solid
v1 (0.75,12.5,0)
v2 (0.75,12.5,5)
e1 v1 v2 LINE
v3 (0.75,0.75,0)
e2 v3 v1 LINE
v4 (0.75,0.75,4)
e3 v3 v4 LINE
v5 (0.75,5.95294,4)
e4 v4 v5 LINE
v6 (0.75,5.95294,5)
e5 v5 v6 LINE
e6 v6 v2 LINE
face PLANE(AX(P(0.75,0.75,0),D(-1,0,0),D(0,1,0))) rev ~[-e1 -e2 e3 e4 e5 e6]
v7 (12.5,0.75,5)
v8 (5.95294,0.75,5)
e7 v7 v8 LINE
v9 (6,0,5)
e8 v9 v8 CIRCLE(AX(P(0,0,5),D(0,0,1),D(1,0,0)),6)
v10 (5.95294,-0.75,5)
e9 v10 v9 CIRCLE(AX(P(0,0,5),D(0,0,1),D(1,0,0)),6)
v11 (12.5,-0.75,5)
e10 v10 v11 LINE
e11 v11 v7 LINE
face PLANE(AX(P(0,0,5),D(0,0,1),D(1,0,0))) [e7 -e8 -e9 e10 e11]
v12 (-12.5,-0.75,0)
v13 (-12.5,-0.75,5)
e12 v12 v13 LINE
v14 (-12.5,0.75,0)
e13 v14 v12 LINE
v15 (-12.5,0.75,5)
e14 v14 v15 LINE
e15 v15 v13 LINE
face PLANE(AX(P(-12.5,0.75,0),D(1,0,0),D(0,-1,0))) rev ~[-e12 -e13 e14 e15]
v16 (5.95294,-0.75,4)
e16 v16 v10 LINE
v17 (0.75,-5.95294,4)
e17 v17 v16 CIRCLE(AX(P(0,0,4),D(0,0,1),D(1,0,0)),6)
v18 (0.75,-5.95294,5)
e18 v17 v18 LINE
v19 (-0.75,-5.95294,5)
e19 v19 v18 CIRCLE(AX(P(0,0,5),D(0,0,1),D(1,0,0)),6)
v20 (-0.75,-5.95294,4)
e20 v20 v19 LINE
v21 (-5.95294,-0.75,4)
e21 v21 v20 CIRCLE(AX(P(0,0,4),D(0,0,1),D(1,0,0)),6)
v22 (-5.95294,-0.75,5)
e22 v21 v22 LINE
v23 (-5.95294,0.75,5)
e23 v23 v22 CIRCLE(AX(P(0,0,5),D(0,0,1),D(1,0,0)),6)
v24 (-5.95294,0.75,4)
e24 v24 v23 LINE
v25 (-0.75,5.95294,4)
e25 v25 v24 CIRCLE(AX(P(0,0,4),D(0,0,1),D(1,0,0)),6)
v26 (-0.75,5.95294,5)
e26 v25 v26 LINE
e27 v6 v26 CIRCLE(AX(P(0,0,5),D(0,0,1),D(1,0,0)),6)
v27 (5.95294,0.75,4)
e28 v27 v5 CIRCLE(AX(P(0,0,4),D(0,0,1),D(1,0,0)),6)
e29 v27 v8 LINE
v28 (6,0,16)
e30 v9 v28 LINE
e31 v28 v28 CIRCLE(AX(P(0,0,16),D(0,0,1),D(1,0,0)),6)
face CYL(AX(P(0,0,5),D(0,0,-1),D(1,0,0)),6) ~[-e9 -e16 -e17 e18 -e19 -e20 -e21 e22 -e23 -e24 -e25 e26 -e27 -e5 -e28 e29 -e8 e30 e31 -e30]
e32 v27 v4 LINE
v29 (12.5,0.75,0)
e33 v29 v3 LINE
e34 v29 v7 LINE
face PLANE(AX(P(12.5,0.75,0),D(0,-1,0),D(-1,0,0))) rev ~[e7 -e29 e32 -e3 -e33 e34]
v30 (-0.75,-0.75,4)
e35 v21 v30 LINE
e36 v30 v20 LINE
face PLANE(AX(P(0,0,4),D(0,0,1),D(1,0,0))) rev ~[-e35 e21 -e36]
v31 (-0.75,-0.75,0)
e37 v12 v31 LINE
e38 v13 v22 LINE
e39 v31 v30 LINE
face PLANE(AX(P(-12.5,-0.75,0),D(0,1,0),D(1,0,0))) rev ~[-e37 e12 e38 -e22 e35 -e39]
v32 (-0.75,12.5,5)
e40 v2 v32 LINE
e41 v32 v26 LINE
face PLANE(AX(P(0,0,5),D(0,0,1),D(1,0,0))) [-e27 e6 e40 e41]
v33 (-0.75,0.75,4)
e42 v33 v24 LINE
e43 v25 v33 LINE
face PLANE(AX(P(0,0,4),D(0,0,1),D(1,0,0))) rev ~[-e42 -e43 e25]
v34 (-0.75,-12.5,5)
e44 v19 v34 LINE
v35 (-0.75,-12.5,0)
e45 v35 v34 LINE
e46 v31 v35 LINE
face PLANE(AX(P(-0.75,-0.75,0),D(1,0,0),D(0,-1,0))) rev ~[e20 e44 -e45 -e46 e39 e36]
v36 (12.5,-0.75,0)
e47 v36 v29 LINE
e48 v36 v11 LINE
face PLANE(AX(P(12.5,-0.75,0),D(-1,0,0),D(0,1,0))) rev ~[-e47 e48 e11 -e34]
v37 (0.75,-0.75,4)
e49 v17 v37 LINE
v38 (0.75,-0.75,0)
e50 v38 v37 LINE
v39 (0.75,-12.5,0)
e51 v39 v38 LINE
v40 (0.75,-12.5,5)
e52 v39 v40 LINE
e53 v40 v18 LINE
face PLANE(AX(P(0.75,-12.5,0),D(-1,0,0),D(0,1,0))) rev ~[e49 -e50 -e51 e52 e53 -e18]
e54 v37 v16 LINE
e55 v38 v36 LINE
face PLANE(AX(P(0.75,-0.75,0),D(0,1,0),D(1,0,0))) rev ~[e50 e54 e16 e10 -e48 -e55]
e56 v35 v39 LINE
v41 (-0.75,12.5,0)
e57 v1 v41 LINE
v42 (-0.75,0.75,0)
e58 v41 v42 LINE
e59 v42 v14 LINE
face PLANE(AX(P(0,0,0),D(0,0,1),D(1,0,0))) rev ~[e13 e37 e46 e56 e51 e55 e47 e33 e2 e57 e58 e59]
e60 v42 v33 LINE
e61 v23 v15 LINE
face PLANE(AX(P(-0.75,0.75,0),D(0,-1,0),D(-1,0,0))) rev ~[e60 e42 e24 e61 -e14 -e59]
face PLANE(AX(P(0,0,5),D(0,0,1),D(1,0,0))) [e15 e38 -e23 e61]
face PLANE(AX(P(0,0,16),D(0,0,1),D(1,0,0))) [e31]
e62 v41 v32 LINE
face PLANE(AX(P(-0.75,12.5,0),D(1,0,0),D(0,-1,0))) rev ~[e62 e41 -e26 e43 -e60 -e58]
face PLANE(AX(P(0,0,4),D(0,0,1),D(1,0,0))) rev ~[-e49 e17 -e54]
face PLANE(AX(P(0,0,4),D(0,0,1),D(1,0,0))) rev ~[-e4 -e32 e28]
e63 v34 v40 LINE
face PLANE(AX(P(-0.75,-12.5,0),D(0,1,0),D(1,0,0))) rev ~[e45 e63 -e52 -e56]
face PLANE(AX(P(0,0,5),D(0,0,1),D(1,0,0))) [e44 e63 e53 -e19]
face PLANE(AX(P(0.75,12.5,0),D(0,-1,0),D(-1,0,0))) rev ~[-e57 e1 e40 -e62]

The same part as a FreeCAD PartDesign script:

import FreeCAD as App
import Part
import Sketcher
from FreeCAD import Vector

doc = App.newDocument("Part")
body = doc.addObject("PartDesign::Body", "Body")

sketch1 = doc.addObject("Sketcher::SketchObject", "Sketch")
body.addObject(sketch1)
sketch1.AttachmentSupport = (doc.XY_Plane, [""])
sketch1.MapMode = "FlatFace"
sketch1.addGeometry(Part.LineSegment(Vector(-0.75, 12.5, 0), Vector(-0.75, 0.75, 0)), False)
sketch1.addGeometry(Part.LineSegment(Vector(-0.75, 0.75, 0), Vector(-12.5, 0.75, 0)), False)
sketch1.addGeometry(Part.LineSegment(Vector(-12.5, 0.75, 0), Vector(-12.5, -0.75, 0)), False)
sketch1.addGeometry(Part.LineSegment(Vector(-12.5, -0.75, 0), Vector(-0.75, -0.75, 0)), False)
sketch1.addGeometry(Part.LineSegment(Vector(-0.75, -0.75, 0), Vector(-0.75, -12.5, 0)), False)
sketch1.addGeometry(Part.LineSegment(Vector(-0.75, -12.5, 0), Vector(0.75, -12.5, 0)), False)
sketch1.addGeometry(Part.LineSegment(Vector(0.75, -12.5, 0), Vector(0.75, -0.75, 0)), False)
sketch1.addGeometry(Part.LineSegment(Vector(0.75, -0.75, 0), Vector(12.5, -0.75, 0)), False)
sketch1.addGeometry(Part.LineSegment(Vector(12.5, -0.75, 0), Vector(12.5, 0.75, 0)), False)
sketch1.addGeometry(Part.LineSegment(Vector(12.5, 0.75, 0), Vector(0.75, 0.75, 0)), False)
sketch1.addGeometry(Part.LineSegment(Vector(0.75, 0.75, 0), Vector(0.75, 12.5, 0)), False)
sketch1.addGeometry(Part.LineSegment(Vector(0.75, 12.5, 0), Vector(-0.75, 12.5, 0)), False)
sketch1.addConstraint(Sketcher.Constraint("Coincident", 0, 2, 1, 1))
sketch1.addConstraint(Sketcher.Constraint("Coincident", 1, 2, 2, 1))
sketch1.addConstraint(Sketcher.Constraint("Coincident", 2, 2, 3, 1))
sketch1.addConstraint(Sketcher.Constraint("Coincident", 3, 2, 4, 1))
sketch1.addConstraint(Sketcher.Constraint("Coincident", 4, 2, 5, 1))
sketch1.addConstraint(Sketcher.Constraint("Coincident", 5, 2, 6, 1))
sketch1.addConstraint(Sketcher.Constraint("Coincident", 6, 2, 7, 1))
sketch1.addConstraint(Sketcher.Constraint("Coincident", 7, 2, 8, 1))
sketch1.addConstraint(Sketcher.Constraint("Coincident", 8, 2, 9, 1))
sketch1.addConstraint(Sketcher.Constraint("Coincident", 9, 2, 10, 1))
sketch1.addConstraint(Sketcher.Constraint("Coincident", 10, 2, 11, 1))
sketch1.addConstraint(Sketcher.Constraint("Coincident", 11, 2, 0, 1))
sketch1.addConstraint(Sketcher.Constraint("Vertical", 0))
sketch1.addConstraint(Sketcher.Constraint("Horizontal", 1))
sketch1.addConstraint(Sketcher.Constraint("Vertical", 2))
sketch1.addConstraint(Sketcher.Constraint("Horizontal", 3))
sketch1.addConstraint(Sketcher.Constraint("Vertical", 4))
sketch1.addConstraint(Sketcher.Constraint("Horizontal", 5))
sketch1.addConstraint(Sketcher.Constraint("Vertical", 6))
sketch1.addConstraint(Sketcher.Constraint("Horizontal", 7))
sketch1.addConstraint(Sketcher.Constraint("Vertical", 8))
sketch1.addConstraint(Sketcher.Constraint("Horizontal", 9))
sketch1.addConstraint(Sketcher.Constraint("Vertical", 10))
sketch1.addConstraint(Sketcher.Constraint("Horizontal", 11))
sketch1.addConstraint(Sketcher.Constraint("Symmetric", 0, 2, 6, 2, -1, 1))
sketch1.addConstraint(Sketcher.Constraint("Symmetric", 2, 2, 8, 2, -1, 1))
sketch1.addConstraint(Sketcher.Constraint("Symmetric", 4, 2, 10, 2, -1, 1))
sketch1.addConstraint(Sketcher.Constraint("Symmetric", 3, 2, 6, 2, -2))
sketch1.addConstraint(Sketcher.Constraint("Equal", 9, 0))
sketch1.addConstraint(Sketcher.Constraint("Equal", 11, 2))
sketch1.addConstraint(Sketcher.Constraint("DistanceX", 5, 1, 5, 2, 1.5))
sketch1.addConstraint(Sketcher.Constraint("DistanceX", 1, 2, 1, 1, 11.75))
pad1 = doc.addObject("PartDesign::Pad", "Pad")
body.addObject(pad1)
pad1.Profile = sketch1
pad1.Length = 5

sketch2 = doc.addObject("Sketcher::SketchObject", "Sketch001")
body.addObject(sketch2)
sketch2.AttachmentSupport = (doc.XY_Plane, [""])
sketch2.MapMode = "FlatFace"
sketch2.AttachmentOffset = App.Placement(Vector(0, 0, 5), App.Rotation())
sketch2.addGeometry(Part.Circle(Vector(0, 0, 0), Vector(0, 0, 1), 6), False)
sketch2.addConstraint(Sketcher.Constraint("Coincident", 0, 3, -1, 1))
sketch2.addConstraint(Sketcher.Constraint("Diameter", 0, 12.0))
pad2 = doc.addObject("PartDesign::Pad", "Pad001")
body.addObject(pad2)
pad2.Profile = sketch2
pad2.Length = 1
pad2.Reversed = True

sketch3 = doc.addObject("Sketcher::SketchObject", "Sketch002")
body.addObject(sketch3)
sketch3.AttachmentSupport = (doc.XY_Plane, [""])
sketch3.MapMode = "FlatFace"
sketch3.AttachmentOffset = App.Placement(Vector(0, 0, 5), App.Rotation())
sketch3.addGeometry(Part.Circle(Vector(0, 0, 0), Vector(0, 0, 1), 6), False)
sketch3.addConstraint(Sketcher.Constraint("Coincident", 0, 3, -1, 1))
sketch3.addConstraint(Sketcher.Constraint("Diameter", 0, 12.0))
pad3 = doc.addObject("PartDesign::Pad", "Pad002")
body.addObject(pad3)
pad3.Profile = sketch3
pad3.Length = 11

doc.recompute()
